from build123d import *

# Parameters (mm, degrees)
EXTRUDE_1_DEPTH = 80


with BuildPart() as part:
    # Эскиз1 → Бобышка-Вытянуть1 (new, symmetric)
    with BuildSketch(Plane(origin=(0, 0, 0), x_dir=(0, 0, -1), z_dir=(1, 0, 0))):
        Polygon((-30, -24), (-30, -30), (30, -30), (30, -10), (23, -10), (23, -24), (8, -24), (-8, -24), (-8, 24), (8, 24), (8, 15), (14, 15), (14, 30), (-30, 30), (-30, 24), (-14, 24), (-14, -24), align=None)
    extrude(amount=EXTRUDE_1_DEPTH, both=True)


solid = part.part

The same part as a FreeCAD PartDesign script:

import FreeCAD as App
import Part
import Sketcher

V = App.Vector
Q = App.Units.Quantity


def add_polygon(sketch, points):
    """Adds a closed chain of lines whose ends are joined by coincident constraints."""
    first, n = sketch.GeometryCount, len(points)
    for a, b in zip(points, points[1:] + points[:1]):
        sketch.addGeometry(Part.LineSegment(App.Vector(*a, 0), App.Vector(*b, 0)), False)
    for i in range(n):
        sketch.addConstraint(Sketcher.Constraint("Coincident", first + i, 2, first + (i + 1) % n, 1))

doc = App.newDocument("Part")
params = doc.addObject("Spreadsheet::Sheet", "Params")
for row, (alias, value) in enumerate([
    ("sketch1_width", "6 mm"),
    ("sketch1_width2", "20 mm"),
    ("sketch1_width3", "48 mm"),
    ("sketch1_width4", "9 mm"),
    ("sketch1_height", "60 mm"),
    ("pad1_length", "160 mm"),
], start=1):
    params.set(f"A{row}", alias)
    params.set(f"B{row}", "=" + value)
    params.setAlias(f"B{row}", alias)

body = doc.addObject("PartDesign::Body", "Body")

sketch1 = body.newObject("Sketcher::SketchObject", "Sketch")
sketch1.AttachmentSupport = (doc.getObject("YZ_Plane"), [""])
sketch1.MapMode = "FlatFace"
add_polygon(sketch1, [(-24, 30), (-30, 30), (-30, -30), (-10, -30), (-10, -23), (-24, -23), (-24, 8), (24, 8), (24, -8), (15, -8), (15, -14), (30, -14), (30, 30), (24, 30), (24, 14), (-24, 14)])
sketch1.addConstraint(Sketcher.Constraint("Horizontal", 0))
sketch1.addConstraint(Sketcher.Constraint("Vertical", 1))
sketch1.addConstraint(Sketcher.Constraint("Horizontal", 2))
sketch1.addConstraint(Sketcher.Constraint("Vertical", 3))
sketch1.addConstraint(Sketcher.Constraint("Horizontal", 4))
sketch1.addConstraint(Sketcher.Constraint("Vertical", 5))
sketch1.addConstraint(Sketcher.Constraint("Horizontal", 6))
sketch1.addConstraint(Sketcher.Constraint("Vertical", 7))
sketch1.addConstraint(Sketcher.Constraint("Horizontal", 8))
sketch1.addConstraint(Sketcher.Constraint("Vertical", 9))
sketch1.addConstraint(Sketcher.Constraint("Horizontal", 10))
sketch1.addConstraint(Sketcher.Constraint("Vertical", 11))
sketch1.addConstraint(Sketcher.Constraint("Horizontal", 12))
sketch1.addConstraint(Sketcher.Constraint("Vertical", 13))
sketch1.addConstraint(Sketcher.Constraint("Horizontal", 14))
sketch1.addConstraint(Sketcher.Constraint("Vertical", 15))
sketch1.addConstraint(Sketcher.Constraint("Symmetric", 5, 2, 7, 2, -1, 1))
sketch1.addConstraint(Sketcher.Constraint("Symmetric", 1, 2, 11, 2, -1, 1))
sketch1.addConstraint(Sketcher.Constraint("Symmetric", 12, 2, 15, 2, -2))
sketch1.addConstraint(Sketcher.Constraint("Vertical", 7, 2, 12, 2))
sketch1.addConstraint(Sketcher.Constraint("Equal", 12, 9))
sketch1.addConstraint(Sketcher.Constraint("Equal", 7, 13))
sketch1.addConstraint(Sketcher.Constraint("DistanceX", 0, 2, 0, 1, Q("6 mm")))
sketch1.addConstraint(Sketcher.Constraint("DistanceX", 2, 1, 2, 2, Q("20 mm")))
sketch1.addConstraint(Sketcher.Constraint("DistanceX", 6, 1, 6, 2, Q("48 mm")))
sketch1.addConstraint(Sketcher.Constraint("DistanceX", 8, 2, 8, 1, Q("9 mm")))
sketch1.addConstraint(Sketcher.Constraint("DistanceY", 1, 2, 1, 1, Q("60 mm")))
sketch1.addConstraint(Sketcher.Constraint("DistanceY", 3, 1, 3, 2, Q("7 mm")))
sketch1.addConstraint(Sketcher.Constraint("DistanceY", 5, 1, 5, 2, Q("31 mm")))
sketch1.setExpression("Constraints[38]", "Params.sketch1_width")
sketch1.setExpression("Constraints[39]", "Params.sketch1_width2")
sketch1.setExpression("Constraints[40]", "Params.sketch1_width3")
sketch1.setExpression("Constraints[41]", "Params.sketch1_width4")
sketch1.setExpression("Constraints[42]", "Params.sketch1_height")
pad1 = body.newObject("PartDesign::Pad", "Pad")
pad1.Profile = sketch1
pad1.setExpression("Length", "Params.pad1_length")
pad1.Midplane = True

doc.recompute()
